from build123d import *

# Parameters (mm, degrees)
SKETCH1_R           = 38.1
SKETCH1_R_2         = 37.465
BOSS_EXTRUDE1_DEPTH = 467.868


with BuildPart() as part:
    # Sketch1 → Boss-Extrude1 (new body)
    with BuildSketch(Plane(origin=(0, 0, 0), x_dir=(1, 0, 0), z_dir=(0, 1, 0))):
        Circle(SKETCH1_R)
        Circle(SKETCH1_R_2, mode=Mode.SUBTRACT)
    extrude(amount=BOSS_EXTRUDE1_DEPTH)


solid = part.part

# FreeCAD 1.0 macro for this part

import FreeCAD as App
import Part
import Sketcher
Q = App.Units.Quantity

doc = App.newDocument("Part")
body = doc.addObject("PartDesign::Body", "Body")

# Sketch on XZ plane
sketch1 = body.newObject("Sketcher::SketchObject", "Sketch")
sketch1.AttachmentSupport = (doc.getObject("XZ_Plane"), [""])
sketch1.MapMode = "FlatFace"
sketch1.addGeometry([
    Part.Circle(App.Vector(0, 0, 0), App.Vector(0, 0, 1), 38),
    Part.Circle(App.Vector(0, 0, 0), App.Vector(0, 0, 1), 37),
], False)
sketch1.addConstraint([
    Sketcher.Constraint("Coincident", 0, 3, -1, 1),
    Sketcher.Constraint("Coincident", 1, 3, -1, 1),
    Sketcher.Constraint("Diameter", 0, Q("3 in")),
    Sketcher.Constraint("Diameter", 1, Q("2.95 in")),
])
pad1 = body.newObject("PartDesign::Pad", "Pad")
pad1.Profile = sketch1
pad1.Length = Q("18.42 in")
pad1.Reversed = True

doc.recompute()
